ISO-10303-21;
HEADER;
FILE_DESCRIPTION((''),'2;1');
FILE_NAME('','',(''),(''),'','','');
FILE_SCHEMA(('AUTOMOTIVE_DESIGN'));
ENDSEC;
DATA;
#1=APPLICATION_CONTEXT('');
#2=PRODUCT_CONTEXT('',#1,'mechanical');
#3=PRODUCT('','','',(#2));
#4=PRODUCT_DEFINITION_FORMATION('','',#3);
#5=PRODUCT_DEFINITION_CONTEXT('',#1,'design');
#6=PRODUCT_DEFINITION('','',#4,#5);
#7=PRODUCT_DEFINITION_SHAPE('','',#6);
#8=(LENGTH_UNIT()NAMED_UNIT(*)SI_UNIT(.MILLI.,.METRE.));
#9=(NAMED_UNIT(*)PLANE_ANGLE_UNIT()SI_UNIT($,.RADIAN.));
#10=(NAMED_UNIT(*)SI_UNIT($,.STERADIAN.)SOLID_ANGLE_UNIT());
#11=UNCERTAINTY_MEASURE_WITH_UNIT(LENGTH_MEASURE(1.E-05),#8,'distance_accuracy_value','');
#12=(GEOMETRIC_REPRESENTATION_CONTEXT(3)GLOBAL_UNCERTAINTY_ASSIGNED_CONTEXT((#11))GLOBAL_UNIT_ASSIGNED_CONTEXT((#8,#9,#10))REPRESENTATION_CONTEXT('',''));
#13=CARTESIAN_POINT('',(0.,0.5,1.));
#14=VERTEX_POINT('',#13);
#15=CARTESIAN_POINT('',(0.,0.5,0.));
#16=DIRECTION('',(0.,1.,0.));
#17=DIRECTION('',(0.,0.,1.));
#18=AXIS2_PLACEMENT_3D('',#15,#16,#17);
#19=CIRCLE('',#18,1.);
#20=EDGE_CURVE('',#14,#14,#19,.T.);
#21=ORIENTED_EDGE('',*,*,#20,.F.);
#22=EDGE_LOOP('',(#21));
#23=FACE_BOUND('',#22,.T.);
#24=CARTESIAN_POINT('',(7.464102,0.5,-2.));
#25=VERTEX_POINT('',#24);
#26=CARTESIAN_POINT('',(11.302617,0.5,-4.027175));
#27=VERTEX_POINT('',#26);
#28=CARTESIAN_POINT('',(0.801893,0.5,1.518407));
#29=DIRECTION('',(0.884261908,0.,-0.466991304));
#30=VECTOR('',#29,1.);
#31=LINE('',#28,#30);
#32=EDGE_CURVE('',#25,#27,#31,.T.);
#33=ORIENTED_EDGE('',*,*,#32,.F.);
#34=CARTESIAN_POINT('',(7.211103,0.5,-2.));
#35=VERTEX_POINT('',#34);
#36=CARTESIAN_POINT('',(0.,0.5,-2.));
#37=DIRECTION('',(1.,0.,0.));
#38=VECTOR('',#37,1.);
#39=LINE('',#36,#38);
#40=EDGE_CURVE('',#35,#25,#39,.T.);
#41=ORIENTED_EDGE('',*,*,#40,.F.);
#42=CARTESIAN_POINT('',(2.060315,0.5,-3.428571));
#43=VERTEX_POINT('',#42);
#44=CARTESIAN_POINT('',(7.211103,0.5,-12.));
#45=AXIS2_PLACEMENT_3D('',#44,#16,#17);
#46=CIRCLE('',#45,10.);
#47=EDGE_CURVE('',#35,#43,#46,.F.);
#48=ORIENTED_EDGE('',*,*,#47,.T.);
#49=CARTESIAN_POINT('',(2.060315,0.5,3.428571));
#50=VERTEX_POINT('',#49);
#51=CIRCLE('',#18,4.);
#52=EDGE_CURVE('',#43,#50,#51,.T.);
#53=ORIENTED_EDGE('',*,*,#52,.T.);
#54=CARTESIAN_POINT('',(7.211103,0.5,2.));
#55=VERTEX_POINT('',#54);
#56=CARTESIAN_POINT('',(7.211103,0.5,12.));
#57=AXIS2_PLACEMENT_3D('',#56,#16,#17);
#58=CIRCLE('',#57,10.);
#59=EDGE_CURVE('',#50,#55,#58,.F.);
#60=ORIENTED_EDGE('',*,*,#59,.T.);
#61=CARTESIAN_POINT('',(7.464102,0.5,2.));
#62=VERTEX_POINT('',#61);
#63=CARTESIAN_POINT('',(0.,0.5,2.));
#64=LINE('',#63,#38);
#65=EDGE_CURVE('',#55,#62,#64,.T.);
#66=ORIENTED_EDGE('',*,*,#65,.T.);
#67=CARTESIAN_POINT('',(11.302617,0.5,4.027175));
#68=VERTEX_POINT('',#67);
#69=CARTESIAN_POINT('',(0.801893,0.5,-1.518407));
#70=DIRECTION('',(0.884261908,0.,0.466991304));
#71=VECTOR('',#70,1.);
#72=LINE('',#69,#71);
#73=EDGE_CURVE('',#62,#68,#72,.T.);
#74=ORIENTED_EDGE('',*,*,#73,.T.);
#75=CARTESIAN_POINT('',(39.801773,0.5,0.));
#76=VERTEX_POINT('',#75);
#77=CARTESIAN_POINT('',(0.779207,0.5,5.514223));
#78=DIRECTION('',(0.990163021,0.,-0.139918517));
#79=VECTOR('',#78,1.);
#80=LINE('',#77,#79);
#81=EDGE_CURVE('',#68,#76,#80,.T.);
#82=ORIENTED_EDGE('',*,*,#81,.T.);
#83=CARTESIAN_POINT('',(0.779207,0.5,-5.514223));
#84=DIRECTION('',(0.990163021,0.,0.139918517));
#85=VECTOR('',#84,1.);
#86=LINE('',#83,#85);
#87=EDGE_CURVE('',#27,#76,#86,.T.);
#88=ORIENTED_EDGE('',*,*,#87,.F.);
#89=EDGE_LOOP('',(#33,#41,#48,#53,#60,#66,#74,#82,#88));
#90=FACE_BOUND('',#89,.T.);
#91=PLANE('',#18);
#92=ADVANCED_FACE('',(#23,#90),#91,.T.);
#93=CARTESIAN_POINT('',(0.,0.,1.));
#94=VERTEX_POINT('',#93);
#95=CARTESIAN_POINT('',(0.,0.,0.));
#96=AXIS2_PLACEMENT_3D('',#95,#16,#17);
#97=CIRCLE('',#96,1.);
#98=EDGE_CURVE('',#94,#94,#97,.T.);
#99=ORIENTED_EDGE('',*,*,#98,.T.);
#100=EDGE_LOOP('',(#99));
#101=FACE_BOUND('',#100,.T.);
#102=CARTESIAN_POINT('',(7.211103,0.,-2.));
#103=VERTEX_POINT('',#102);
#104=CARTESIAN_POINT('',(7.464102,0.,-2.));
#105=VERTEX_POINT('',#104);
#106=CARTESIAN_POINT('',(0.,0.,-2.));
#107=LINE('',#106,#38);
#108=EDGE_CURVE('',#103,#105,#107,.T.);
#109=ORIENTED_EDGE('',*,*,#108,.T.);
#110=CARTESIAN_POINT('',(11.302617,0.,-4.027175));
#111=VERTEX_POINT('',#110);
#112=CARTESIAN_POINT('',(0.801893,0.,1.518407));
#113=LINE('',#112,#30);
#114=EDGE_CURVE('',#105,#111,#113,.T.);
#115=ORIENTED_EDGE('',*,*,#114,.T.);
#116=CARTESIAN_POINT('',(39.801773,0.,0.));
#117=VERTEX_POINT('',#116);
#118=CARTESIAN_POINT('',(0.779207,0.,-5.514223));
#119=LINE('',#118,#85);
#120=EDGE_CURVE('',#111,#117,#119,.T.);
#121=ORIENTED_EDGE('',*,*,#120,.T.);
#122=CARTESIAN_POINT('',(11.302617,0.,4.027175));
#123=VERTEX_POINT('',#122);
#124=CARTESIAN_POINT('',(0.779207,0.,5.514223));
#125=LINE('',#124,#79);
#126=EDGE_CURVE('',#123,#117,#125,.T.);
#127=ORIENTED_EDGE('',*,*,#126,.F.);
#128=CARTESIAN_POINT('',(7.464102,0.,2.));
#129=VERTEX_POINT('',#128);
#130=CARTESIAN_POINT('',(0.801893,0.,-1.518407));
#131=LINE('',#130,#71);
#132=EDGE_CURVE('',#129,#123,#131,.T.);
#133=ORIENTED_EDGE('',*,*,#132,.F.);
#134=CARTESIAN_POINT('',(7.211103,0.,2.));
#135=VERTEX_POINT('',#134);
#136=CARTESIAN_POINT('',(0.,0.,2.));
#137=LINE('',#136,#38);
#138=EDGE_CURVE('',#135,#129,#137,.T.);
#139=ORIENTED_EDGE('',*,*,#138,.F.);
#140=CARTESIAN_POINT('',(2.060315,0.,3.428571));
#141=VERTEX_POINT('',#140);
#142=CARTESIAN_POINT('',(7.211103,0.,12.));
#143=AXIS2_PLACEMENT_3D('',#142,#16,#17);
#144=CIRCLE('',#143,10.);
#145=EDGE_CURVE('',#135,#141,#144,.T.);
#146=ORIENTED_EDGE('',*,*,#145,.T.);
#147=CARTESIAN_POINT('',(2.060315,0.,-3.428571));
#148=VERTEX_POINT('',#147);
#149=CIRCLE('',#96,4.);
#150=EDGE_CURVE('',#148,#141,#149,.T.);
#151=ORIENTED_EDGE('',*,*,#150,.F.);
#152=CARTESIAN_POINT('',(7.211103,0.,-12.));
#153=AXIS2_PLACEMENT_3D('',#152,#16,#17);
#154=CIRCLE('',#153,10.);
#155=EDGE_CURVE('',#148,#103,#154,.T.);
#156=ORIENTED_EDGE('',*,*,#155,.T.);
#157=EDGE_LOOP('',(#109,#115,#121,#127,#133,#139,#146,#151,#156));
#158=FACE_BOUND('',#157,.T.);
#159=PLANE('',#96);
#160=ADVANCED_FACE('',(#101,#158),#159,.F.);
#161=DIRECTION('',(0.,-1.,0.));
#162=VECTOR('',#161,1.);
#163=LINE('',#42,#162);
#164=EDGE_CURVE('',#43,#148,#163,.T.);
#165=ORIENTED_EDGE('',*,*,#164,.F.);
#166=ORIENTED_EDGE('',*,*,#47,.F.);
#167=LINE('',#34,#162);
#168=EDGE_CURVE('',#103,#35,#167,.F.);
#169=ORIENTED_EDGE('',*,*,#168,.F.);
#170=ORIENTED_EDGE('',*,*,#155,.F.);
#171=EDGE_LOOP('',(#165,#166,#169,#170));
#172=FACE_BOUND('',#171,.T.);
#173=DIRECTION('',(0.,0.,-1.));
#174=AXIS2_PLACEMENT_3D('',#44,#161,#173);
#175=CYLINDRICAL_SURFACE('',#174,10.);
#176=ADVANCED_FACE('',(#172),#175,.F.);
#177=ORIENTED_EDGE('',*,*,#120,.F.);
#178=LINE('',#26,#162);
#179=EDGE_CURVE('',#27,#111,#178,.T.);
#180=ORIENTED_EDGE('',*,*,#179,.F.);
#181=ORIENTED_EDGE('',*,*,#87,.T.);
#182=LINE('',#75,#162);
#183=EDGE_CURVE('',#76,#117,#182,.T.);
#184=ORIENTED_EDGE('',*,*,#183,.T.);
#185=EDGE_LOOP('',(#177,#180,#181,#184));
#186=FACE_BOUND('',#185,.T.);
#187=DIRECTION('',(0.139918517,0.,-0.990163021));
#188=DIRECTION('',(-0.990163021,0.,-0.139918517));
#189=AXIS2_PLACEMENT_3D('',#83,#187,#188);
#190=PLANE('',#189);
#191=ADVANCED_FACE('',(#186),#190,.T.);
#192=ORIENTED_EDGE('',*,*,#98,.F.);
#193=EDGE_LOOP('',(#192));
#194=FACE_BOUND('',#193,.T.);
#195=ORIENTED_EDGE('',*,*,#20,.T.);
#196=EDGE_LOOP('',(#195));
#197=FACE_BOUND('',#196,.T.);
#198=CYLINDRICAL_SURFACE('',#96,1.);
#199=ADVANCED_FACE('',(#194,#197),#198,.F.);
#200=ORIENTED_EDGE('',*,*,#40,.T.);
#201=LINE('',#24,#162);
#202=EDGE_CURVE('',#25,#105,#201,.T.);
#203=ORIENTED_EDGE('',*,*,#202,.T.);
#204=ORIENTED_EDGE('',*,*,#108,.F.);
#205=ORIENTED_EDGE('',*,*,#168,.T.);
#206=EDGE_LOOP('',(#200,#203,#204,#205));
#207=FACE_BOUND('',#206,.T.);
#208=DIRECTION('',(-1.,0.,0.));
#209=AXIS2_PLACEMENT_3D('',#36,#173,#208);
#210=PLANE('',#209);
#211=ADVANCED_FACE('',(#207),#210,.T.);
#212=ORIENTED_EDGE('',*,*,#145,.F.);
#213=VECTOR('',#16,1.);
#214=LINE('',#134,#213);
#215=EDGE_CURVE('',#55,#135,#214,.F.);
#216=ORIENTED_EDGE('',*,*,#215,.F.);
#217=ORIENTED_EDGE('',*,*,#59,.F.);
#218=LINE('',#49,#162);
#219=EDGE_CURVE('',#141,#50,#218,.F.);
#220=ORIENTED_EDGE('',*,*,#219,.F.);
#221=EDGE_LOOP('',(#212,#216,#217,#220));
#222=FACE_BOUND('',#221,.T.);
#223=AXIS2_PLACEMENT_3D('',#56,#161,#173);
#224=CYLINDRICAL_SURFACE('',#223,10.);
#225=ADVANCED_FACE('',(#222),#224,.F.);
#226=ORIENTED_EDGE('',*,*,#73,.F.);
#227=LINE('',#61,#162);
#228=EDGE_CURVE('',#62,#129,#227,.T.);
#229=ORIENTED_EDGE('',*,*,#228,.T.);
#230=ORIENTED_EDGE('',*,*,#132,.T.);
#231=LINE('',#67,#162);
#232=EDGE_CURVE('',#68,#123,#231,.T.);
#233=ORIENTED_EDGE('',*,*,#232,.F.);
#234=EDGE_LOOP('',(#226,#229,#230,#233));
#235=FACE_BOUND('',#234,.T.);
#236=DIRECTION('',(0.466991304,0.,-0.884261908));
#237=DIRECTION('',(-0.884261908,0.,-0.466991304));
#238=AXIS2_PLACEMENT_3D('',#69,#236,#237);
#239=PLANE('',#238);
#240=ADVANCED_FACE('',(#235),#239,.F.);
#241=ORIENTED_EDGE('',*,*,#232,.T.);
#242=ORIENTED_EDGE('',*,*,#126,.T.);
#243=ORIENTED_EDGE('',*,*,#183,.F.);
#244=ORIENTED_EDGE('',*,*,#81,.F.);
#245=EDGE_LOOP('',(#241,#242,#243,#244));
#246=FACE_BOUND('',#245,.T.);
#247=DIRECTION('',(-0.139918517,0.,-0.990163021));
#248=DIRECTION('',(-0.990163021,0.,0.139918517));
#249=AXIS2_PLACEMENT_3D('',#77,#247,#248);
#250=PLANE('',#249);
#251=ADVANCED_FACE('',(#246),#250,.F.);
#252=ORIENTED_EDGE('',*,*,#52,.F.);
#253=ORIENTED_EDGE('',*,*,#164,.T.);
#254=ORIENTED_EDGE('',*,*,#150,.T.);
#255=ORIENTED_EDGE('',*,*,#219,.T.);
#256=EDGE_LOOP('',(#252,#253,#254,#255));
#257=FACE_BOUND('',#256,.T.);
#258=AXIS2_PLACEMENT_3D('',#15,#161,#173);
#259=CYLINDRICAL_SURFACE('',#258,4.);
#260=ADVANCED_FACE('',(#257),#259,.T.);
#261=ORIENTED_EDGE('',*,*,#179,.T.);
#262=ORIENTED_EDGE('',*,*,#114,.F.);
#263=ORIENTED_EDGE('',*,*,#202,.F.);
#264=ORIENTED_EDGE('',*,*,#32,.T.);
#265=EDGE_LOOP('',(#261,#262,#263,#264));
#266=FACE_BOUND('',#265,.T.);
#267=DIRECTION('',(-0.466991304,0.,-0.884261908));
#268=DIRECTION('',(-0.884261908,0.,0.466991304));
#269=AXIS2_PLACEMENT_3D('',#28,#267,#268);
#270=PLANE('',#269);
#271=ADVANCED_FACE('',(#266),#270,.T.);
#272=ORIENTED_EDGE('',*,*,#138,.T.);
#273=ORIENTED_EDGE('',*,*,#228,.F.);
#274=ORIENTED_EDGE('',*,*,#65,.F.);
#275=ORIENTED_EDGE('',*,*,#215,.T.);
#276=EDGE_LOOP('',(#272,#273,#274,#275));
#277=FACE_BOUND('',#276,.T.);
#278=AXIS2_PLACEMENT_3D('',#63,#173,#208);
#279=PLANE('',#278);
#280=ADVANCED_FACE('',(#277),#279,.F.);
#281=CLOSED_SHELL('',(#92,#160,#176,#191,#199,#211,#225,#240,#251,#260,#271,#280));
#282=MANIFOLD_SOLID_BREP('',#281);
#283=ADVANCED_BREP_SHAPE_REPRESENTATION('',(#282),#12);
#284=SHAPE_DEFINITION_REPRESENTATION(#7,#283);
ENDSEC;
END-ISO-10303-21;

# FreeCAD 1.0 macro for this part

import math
import FreeCAD as App
import Part
import Sketcher

V = App.Vector
Q = App.Units.Quantity


def edges_at(feature, points):
    """Names of the edges that pass closest to the given points."""
    edges = feature.Shape.Edges
    near = lambda p: min(range(len(edges)), key=lambda i: edges[i].distToShape(Part.Vertex(*p))[0])
    return sorted({f"Edge{near(p) + 1}" for p in points})

doc = App.newDocument("Part")
body = doc.addObject("PartDesign::Body", "Body")

sketch1 = doc.addObject("Sketcher::SketchObject", "Sketch")
body.addObject(sketch1)
sketch1.AttachmentSupport = (doc.XZ_Plane, [""])
sketch1.MapMode = "FlatFace"
sketch1.addGeometry([
    Part.LineSegment(V(39.8, 0, 0), V(11.3, -4, 0)),
    Part.LineSegment(V(11.3, -4, 0), V(7.5, -2, 0)),
    Part.LineSegment(V(7.5, -2, 0), V(3.5, -2, 0)),
    Part.ArcOfCircle(Part.Circle(V(0, 0, 0), V(0, 0, 1), 4), math.radians(30), math.radians(330)),
    Part.LineSegment(V(3.5, 2, 0), V(7.5, 2, 0)),
    Part.LineSegment(V(7.5, 2, 0), V(11.3, 4, 0)),
    Part.LineSegment(V(11.3, 4, 0), V(39.8, 0, 0)),
], False)
sketch1.addConstraint([
    Sketcher.Constraint("Coincident", 0, 2, 1, 1),
    Sketcher.Constraint("Coincident", 1, 2, 2, 1),
    Sketcher.Constraint("Coincident", 2, 2, 3, 2),
    Sketcher.Constraint("Coincident", 3, 1, 4, 1),
    Sketcher.Constraint("Coincident", 4, 2, 5, 1),
    Sketcher.Constraint("Coincident", 5, 2, 6, 1),
    Sketcher.Constraint("Coincident", 6, 2, 0, 1),
    Sketcher.Constraint("Horizontal", 2),
    Sketcher.Constraint("Horizontal", 4),
    Sketcher.Constraint("Coincident", 3, 3, -1, 1),
    Sketcher.Constraint("Symmetric", 1, 2, 4, 2, -1),
    Sketcher.Constraint("Symmetric", 0, 2, 5, 2, -1),
    Sketcher.Constraint("PointOnObject", 6, 2, -1),
    Sketcher.Constraint("Radius", 3, Q("4 mm")),
    Sketcher.Constraint("DistanceX", 2, 2, 2, 1, Q("4 mm")),
    Sketcher.Constraint("DistanceY", 1, 2, -1, 1, Q("2 mm")),
    Sketcher.Constraint("DistanceY", 0, 2, 5, 2, Q("8.05435 mm")),
    Sketcher.Constraint("DistanceX", 1, 2, 6, 2, Q("32.337671 mm")),
    Sketcher.Constraint("Distance", 0, Q("28.782286 mm")),
])
pad1 = doc.addObject("PartDesign::Pad", "Pad")
body.addObject(pad1)
pad1.Profile = sketch1
pad1.Length = 0.5
pad1.Reversed = True

sketch2 = doc.addObject("Sketcher::SketchObject", "Sketch001")
body.addObject(sketch2)
sketch2.AttachmentSupport = (doc.XZ_Plane, [""])
sketch2.MapMode = "FlatFace"
sketch2.AttachmentOffset = App.Placement(V(0, 0, -0.5), App.Rotation())
sketch2.addGeometry(Part.Circle(V(0, 0, 0), V(0, 0, 1), 1), False)
sketch2.addConstraint([
    Sketcher.Constraint("Coincident", 0, 3, -1, 1),
    Sketcher.Constraint("Diameter", 0, Q("2 mm")),
])
pocket1 = doc.addObject("PartDesign::Pocket", "Pocket")
body.addObject(pocket1)
pocket1.Profile = sketch2
pocket1.Type = "ThroughAll"
pocket1.Reversed = True
doc.recompute()

fillet = doc.addObject("PartDesign::Fillet", "Fillet")
body.addObject(fillet)
fillet.Base = (pocket1, edges_at(pocket1, [(3.464, 0.25, 2), (3.464, 0.25, -2)]))
fillet.Radius = 10

doc.recompute()
